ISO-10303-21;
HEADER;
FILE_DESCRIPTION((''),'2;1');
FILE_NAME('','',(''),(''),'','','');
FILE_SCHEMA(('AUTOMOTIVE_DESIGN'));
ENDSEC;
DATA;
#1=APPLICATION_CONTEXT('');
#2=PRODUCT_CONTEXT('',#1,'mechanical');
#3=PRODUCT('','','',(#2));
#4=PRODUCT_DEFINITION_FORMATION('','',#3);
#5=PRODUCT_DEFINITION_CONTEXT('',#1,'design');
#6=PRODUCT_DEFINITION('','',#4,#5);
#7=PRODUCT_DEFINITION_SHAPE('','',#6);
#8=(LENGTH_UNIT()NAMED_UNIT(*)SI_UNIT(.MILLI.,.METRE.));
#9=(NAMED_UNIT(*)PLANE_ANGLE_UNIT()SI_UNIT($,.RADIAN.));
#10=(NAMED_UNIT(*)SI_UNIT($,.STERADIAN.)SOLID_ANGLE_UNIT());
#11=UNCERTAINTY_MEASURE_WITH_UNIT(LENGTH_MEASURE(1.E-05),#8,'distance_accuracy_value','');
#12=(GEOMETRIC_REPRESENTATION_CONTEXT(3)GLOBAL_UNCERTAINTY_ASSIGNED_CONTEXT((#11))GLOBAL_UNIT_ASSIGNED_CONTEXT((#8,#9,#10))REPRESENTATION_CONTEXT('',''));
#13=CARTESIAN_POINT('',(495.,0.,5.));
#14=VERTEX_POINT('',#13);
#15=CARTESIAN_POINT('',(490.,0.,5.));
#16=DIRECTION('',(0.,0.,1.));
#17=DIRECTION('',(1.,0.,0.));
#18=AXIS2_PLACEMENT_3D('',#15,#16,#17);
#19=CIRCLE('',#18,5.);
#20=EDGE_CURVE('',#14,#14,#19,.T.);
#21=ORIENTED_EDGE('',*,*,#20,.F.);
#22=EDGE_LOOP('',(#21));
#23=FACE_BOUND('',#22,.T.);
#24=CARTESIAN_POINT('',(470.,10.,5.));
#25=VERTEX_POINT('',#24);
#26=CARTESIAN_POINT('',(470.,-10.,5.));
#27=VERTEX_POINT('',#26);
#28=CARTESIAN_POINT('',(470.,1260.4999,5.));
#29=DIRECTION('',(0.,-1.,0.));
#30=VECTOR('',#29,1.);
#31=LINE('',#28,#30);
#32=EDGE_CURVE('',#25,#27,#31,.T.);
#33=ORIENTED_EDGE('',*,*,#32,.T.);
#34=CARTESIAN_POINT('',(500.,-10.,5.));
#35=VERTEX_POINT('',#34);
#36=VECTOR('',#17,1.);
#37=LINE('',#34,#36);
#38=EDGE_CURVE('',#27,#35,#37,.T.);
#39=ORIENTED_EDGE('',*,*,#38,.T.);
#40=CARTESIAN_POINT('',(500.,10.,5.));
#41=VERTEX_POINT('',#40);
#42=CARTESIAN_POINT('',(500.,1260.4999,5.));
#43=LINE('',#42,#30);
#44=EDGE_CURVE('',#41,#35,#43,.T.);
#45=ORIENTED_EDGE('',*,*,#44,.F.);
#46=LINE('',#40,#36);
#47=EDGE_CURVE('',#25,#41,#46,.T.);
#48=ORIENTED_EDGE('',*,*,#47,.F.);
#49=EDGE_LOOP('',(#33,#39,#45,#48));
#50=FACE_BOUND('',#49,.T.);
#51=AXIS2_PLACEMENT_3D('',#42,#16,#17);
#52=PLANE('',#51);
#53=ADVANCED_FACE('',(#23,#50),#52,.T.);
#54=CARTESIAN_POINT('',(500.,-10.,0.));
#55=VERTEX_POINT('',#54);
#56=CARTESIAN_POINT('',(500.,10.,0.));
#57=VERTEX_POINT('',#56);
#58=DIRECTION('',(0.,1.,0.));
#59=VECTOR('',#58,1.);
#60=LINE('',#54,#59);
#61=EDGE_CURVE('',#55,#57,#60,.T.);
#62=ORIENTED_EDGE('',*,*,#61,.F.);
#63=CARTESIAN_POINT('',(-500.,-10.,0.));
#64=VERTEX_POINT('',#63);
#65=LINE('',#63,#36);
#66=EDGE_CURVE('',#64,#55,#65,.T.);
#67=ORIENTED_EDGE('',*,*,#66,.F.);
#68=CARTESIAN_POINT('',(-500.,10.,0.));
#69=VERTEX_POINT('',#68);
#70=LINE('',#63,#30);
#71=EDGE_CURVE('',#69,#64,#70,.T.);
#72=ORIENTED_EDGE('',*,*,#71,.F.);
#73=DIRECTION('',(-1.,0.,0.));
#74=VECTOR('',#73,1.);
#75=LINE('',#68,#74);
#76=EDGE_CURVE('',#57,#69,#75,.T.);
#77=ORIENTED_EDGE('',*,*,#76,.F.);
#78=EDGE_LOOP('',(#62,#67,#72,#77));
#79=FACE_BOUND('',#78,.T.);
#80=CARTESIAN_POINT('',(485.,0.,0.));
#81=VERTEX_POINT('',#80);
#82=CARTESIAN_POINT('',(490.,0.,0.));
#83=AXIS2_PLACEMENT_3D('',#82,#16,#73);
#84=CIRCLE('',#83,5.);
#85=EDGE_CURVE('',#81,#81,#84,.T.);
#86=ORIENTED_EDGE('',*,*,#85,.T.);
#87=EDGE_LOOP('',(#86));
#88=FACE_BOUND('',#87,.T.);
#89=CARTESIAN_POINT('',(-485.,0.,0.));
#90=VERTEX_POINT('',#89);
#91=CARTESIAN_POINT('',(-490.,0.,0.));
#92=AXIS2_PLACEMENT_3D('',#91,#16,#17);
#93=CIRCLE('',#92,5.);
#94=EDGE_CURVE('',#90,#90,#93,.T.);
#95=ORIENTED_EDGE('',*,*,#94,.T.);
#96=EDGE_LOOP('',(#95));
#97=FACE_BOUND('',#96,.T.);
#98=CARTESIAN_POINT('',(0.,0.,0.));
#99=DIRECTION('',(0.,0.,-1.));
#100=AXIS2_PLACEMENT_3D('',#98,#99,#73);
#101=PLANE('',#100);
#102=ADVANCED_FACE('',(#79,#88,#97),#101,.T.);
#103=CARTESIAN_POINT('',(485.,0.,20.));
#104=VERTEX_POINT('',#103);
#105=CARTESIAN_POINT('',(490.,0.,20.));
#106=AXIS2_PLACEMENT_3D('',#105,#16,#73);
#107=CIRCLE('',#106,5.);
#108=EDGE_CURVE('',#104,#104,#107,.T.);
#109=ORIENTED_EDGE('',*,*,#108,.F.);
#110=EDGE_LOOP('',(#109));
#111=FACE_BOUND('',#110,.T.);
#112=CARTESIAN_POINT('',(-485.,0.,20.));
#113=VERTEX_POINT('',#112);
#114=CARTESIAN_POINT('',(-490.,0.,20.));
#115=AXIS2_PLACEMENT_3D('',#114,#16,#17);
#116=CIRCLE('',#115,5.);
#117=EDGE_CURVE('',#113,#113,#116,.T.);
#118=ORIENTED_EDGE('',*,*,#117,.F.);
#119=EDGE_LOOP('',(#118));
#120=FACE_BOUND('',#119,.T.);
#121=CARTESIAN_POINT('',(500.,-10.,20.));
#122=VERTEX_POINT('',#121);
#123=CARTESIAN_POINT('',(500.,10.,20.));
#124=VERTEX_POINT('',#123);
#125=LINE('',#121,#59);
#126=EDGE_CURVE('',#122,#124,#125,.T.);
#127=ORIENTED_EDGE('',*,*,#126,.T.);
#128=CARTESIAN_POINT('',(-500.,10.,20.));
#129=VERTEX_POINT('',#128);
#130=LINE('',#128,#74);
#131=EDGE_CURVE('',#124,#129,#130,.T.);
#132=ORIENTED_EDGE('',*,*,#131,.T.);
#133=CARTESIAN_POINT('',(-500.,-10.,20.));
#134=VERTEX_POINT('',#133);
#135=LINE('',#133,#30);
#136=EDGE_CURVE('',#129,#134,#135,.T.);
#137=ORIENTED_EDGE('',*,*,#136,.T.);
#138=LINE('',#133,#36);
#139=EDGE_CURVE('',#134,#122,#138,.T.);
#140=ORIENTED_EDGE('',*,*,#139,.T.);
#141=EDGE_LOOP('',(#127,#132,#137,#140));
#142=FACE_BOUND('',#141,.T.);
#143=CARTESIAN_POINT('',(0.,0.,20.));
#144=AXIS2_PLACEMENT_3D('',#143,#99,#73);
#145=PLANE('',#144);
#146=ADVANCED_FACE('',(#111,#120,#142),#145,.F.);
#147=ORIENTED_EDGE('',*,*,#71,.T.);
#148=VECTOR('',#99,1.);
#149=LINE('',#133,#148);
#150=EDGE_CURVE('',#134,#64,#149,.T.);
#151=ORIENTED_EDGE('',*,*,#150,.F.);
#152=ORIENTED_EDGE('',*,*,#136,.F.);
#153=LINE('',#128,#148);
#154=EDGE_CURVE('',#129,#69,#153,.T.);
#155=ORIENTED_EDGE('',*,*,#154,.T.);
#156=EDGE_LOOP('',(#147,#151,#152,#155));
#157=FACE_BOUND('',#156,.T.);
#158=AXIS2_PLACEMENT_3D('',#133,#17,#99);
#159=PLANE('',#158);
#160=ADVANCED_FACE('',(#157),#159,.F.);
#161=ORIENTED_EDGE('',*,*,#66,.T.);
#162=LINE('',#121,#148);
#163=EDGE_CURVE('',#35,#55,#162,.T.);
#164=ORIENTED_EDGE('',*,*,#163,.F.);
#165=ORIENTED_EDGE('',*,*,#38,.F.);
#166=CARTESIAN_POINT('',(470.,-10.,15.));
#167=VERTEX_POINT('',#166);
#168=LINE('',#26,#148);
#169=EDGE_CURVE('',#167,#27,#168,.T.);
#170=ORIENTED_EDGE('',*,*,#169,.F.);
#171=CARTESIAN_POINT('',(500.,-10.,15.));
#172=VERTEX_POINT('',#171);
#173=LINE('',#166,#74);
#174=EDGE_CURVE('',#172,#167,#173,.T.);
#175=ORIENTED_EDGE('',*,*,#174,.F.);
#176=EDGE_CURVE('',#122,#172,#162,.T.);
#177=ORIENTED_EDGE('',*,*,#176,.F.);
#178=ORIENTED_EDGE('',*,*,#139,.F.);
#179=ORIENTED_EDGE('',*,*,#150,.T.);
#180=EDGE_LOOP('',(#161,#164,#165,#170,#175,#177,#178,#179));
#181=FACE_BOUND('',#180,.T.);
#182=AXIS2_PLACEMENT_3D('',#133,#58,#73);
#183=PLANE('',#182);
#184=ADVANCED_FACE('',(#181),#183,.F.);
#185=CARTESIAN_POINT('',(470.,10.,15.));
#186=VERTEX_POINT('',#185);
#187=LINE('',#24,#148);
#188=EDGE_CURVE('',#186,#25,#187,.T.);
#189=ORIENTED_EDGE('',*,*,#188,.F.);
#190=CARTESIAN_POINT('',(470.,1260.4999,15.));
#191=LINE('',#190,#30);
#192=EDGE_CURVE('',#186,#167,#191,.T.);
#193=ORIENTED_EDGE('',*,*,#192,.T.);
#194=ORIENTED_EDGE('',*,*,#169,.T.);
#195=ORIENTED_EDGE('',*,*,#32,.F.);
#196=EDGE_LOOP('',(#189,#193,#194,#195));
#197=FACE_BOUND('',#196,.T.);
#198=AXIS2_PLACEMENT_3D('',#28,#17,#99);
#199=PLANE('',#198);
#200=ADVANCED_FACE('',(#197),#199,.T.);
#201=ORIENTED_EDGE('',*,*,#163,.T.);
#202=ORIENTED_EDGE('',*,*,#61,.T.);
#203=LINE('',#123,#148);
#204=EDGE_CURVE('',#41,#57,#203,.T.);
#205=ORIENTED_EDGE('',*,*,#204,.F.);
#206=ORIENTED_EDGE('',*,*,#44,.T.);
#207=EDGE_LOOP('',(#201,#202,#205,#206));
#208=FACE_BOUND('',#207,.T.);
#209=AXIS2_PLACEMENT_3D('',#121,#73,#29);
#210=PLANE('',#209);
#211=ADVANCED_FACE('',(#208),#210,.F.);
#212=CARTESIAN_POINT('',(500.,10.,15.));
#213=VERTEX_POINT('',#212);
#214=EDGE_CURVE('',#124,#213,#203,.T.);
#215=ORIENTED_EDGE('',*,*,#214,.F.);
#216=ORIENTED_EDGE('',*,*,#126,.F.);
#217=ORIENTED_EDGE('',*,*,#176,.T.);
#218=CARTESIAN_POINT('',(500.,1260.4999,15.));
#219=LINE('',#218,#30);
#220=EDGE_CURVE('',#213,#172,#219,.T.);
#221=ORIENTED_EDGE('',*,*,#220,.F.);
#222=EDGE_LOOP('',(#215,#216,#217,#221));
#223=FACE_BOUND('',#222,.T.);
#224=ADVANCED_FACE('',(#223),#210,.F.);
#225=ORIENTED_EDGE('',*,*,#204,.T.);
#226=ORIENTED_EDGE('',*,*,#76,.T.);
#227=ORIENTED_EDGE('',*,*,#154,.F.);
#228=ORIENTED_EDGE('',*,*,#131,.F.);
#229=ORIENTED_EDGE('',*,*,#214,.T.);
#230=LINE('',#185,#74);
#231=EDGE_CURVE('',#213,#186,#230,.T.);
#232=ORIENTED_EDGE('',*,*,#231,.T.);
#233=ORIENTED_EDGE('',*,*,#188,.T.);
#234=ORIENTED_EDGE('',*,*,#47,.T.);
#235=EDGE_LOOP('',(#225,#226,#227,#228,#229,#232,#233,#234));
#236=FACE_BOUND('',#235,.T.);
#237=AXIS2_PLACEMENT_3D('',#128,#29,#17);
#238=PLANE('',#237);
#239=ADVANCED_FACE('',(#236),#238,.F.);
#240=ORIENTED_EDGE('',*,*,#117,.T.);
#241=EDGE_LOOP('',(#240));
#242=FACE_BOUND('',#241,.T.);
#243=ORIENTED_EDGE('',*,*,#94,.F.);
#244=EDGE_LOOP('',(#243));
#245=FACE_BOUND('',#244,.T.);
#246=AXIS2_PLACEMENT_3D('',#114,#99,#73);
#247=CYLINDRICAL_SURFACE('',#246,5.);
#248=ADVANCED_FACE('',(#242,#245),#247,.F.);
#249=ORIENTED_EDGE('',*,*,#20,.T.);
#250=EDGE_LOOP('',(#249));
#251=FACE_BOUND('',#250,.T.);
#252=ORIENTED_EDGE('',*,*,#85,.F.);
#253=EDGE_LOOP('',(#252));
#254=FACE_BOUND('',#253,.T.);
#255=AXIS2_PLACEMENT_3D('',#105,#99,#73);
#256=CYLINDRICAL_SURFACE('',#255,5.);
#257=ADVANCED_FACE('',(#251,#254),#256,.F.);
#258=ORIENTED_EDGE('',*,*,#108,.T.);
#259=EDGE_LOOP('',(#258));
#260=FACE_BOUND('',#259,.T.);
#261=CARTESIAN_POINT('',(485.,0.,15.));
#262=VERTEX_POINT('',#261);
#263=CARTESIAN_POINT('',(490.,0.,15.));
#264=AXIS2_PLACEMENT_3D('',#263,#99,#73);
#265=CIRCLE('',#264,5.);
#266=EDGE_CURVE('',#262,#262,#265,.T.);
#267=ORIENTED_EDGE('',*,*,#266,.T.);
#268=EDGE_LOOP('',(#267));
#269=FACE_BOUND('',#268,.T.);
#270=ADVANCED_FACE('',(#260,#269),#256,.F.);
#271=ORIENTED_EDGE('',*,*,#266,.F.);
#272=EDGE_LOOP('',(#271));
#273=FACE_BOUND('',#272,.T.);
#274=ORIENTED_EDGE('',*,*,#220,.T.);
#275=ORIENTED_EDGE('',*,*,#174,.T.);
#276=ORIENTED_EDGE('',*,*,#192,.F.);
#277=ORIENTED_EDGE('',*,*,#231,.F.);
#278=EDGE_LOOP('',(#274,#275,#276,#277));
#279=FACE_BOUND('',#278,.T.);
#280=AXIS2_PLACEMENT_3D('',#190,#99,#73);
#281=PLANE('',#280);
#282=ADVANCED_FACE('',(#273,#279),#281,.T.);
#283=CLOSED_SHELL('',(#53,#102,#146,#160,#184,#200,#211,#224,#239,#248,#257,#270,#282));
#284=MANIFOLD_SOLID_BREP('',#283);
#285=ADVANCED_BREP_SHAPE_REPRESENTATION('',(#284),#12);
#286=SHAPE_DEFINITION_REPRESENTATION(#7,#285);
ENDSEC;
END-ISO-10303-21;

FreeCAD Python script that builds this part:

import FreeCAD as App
import Part
import Sketcher

V = App.Vector

doc = App.newDocument("Part")
params = doc.addObject("Spreadsheet::Sheet", "Params")
for row, (alias, value) in enumerate([
    ("sketch1_diameter", "10 mm"),
    ("sketch1_width", "1000 mm"),
    ("sketch1_height", "20 mm"),
    ("pad1_length", "20 mm"),
    ("sketch2_height", "10 mm"),
], start=1):
    params.set(f"A{row}", alias)
    params.set(f"B{row}", "=" + value)
    params.setAlias(f"B{row}", alias)

body = doc.addObject("PartDesign::Body", "Body")

# Sketch on XY plane
sketch1 = body.newObject("Sketcher::SketchObject", "Sketch")
sketch1.AttachmentSupport = (doc.getObject("XY_Plane"), [""])
sketch1.MapMode = "FlatFace"
sketch1.addGeometry(Part.LineSegment(V(-500, 10, 0), V(-500, -10, 0)), False)
sketch1.addGeometry(Part.LineSegment(V(-500, -10, 0), V(500, -10, 0)), False)
sketch1.addGeometry(Part.LineSegment(V(500, -10, 0), V(500, 10, 0)), False)
sketch1.addGeometry(Part.LineSegment(V(500, 10, 0), V(-500, 10, 0)), False)
sketch1.addGeometry(Part.Circle(V(-490, 0, 0), V(0, 0, 1), 5), False)
sketch1.addGeometry(Part.Circle(V(490, 0, 0), V(0, 0, 1), 5), False)
sketch1.addConstraint(Sketcher.Constraint("Coincident", 0, 2, 1, 1))
sketch1.addConstraint(Sketcher.Constraint("Coincident", 1, 2, 2, 1))
sketch1.addConstraint(Sketcher.Constraint("Coincident", 2, 2, 3, 1))
sketch1.addConstraint(Sketcher.Constraint("Coincident", 3, 2, 0, 1))
sketch1.addConstraint(Sketcher.Constraint("Vertical", 0))
sketch1.addConstraint(Sketcher.Constraint("Horizontal", 1))
sketch1.addConstraint(Sketcher.Constraint("Vertical", 2))
sketch1.addConstraint(Sketcher.Constraint("Horizontal", 3))
sketch1.addConstraint(Sketcher.Constraint("Equal", 4, 5))
sketch1.addConstraint(Sketcher.Constraint("Symmetric", 4, 3, 5, 3, -1, 1))
sketch1.addConstraint(Sketcher.Constraint("Symmetric", 0, 2, 2, 2, -1, 1))
sketch1.addConstraint(Sketcher.Constraint("PointOnObject", 4, 3, -1))
sketch1.addConstraint(Sketcher.Constraint("Diameter", 4, 10.0))
sketch1.addConstraint(Sketcher.Constraint("DistanceX", 1, 1, 1, 2, 1000.0))
sketch1.addConstraint(Sketcher.Constraint("DistanceY", 0, 2, 0, 1, 20.0))
sketch1.addConstraint(Sketcher.Constraint("DistanceX", 4, 3, -1, 1, 490.0))
sketch1.setExpression("Constraints[12]", "Params.sketch1_diameter")
sketch1.setExpression("Constraints[13]", "Params.sketch1_width")
sketch1.setExpression("Constraints[14]", "Params.sketch1_height")
pad1 = body.newObject("PartDesign::Pad", "Pad")
pad1.Profile = sketch1
pad1.setExpression("Length", "Params.pad1_length")

# Sketch on XZ plane
sketch2 = body.newObject("Sketcher::SketchObject", "Sketch001")
sketch2.AttachmentSupport = (doc.getObject("XZ_Plane"), [""])
sketch2.MapMode = "FlatFace"
sketch2.AttachmentOffset = App.Placement(V(0, 0, -10), App.Rotation())
sketch2.addGeometry(Part.LineSegment(V(470, 5, 0), V(470, 15, 0)), False)
sketch2.addGeometry(Part.LineSegment(V(470, 15, 0), V(6531, 15, 0)), False)
sketch2.addGeometry(Part.LineSegment(V(6531, 15, 0), V(6531, 5, 0)), False)
sketch2.addGeometry(Part.LineSegment(V(6531, 5, 0), V(470, 5, 0)), False)
sketch2.addConstraint(Sketcher.Constraint("Coincident", 0, 2, 1, 1))
sketch2.addConstraint(Sketcher.Constraint("Coincident", 1, 2, 2, 1))
sketch2.addConstraint(Sketcher.Constraint("Coincident", 2, 2, 3, 1))
sketch2.addConstraint(Sketcher.Constraint("Coincident", 3, 2, 0, 1))
sketch2.addConstraint(Sketcher.Constraint("Vertical", 0))
sketch2.addConstraint(Sketcher.Constraint("Horizontal", 1))
sketch2.addConstraint(Sketcher.Constraint("Vertical", 2))
sketch2.addConstraint(Sketcher.Constraint("Horizontal", 3))
sketch2.addConstraint(Sketcher.Constraint("DistanceY", 0, 1, 0, 2, 10.0))
sketch2.addConstraint(Sketcher.Constraint("DistanceX", -1, 1, 0, 2, 470.0))
sketch2.addConstraint(Sketcher.Constraint("DistanceY", -1, 1, 0, 2, 15.0))
sketch2.addConstraint(Sketcher.Constraint("DistanceX", 1, 1, 1, 2, 6060.674962))
sketch2.setExpression("Constraints[8]", "Params.sketch2_height")
pocket1 = body.newObject("PartDesign::Pocket", "Pocket")
pocket1.Profile = sketch2
pocket1.Type = "ThroughAll"
pocket1.Midplane = True

doc.recompute()
